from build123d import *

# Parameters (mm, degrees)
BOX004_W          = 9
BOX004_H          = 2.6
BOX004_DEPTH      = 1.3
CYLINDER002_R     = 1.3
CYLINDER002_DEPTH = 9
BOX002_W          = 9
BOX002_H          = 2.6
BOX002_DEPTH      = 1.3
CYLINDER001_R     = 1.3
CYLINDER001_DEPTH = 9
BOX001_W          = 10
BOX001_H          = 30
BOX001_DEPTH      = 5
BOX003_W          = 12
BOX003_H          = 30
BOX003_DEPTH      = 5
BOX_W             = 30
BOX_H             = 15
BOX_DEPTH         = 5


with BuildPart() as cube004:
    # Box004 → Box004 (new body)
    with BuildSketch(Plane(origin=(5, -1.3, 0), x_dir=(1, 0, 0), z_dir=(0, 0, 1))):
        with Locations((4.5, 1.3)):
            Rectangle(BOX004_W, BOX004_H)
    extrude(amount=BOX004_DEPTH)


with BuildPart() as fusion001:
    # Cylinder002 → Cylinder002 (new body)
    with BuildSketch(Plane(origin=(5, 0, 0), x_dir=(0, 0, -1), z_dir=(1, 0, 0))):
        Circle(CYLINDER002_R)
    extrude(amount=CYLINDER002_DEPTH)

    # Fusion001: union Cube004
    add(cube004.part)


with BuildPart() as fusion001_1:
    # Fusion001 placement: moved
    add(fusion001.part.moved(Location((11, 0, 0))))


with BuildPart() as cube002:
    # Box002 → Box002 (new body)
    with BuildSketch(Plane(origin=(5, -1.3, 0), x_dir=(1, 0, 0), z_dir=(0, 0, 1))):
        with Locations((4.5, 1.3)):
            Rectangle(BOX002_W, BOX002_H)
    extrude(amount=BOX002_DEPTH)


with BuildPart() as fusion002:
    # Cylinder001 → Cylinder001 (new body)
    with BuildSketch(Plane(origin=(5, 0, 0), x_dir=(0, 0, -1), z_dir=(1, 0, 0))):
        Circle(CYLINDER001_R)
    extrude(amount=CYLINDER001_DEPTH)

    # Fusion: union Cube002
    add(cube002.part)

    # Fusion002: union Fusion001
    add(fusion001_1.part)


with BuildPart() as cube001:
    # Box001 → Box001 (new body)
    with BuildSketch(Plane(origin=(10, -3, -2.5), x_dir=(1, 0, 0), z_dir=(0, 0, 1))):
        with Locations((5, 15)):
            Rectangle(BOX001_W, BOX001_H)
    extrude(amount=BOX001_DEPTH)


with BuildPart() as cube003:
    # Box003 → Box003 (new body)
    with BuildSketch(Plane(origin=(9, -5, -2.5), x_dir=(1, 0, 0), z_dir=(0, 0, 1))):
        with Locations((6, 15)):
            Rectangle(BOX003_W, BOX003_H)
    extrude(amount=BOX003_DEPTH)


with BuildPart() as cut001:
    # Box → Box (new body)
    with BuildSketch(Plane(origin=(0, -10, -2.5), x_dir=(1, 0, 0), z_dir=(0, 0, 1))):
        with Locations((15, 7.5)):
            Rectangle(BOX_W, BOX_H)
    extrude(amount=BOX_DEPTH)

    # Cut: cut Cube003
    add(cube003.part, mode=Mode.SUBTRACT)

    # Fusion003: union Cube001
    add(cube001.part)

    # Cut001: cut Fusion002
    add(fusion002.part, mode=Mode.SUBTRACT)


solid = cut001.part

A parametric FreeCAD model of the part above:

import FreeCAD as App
import Part
import Sketcher
Q = App.Units.Quantity


def add_polygon(sketch, points):
    """Adds a closed chain of lines whose ends are joined by coincident constraints."""
    first, n = sketch.GeometryCount, len(points)
    for a, b in zip(points, points[1:] + points[:1]):
        sketch.addGeometry(Part.LineSegment(App.Vector(*a, 0), App.Vector(*b, 0)), False)
    for i in range(n):
        sketch.addConstraint(Sketcher.Constraint("Coincident", first + i, 2, first + (i + 1) % n, 1))

doc = App.newDocument("Part")
body = doc.addObject("PartDesign::Body", "Body")

sketch1 = body.newObject("Sketcher::SketchObject", "Sketch")
sketch1.AttachmentSupport = (doc.getObject("XY_Plane"), [""])
sketch1.MapMode = "FlatFace"
add_polygon(sketch1, [(5, 1.3), (5, -1.3), (14, -1.3), (14, 1.3)])
sketch1.addConstraint([
    Sketcher.Constraint("Vertical", 0),
    Sketcher.Constraint("Horizontal", 1),
    Sketcher.Constraint("Vertical", 2),
    Sketcher.Constraint("Horizontal", 3),
    Sketcher.Constraint("DistanceX", 1, 1, 1, 2, Q("9 mm")),
    Sketcher.Constraint("DistanceY", 0, 2, 0, 1, Q("2.6 mm")),
    Sketcher.Constraint("DistanceX", -1, 1, 0, 2, Q("5 mm")),
    Sketcher.Constraint("DistanceY", 0, 2, -1, 1, Q("1.3 mm")),
])
pad1 = body.newObject("PartDesign::Pad", "Pad")
pad1.Profile = sketch1
pad1.Length = 1.3
body2 = doc.addObject("PartDesign::Body", "Body001")

sketch2 = body2.newObject("Sketcher::SketchObject", "Sketch001")
sketch2.AttachmentSupport = (doc.getObject("YZ_Plane001"), [""])
sketch2.MapMode = "FlatFace"
sketch2.AttachmentOffset = App.Placement(App.Vector(0, 0, 5), App.Rotation())
sketch2.addGeometry(Part.Circle(App.Vector(0, 0, 0), App.Vector(0, 0, 1), 1.3), False)
sketch2.addConstraint([
    Sketcher.Constraint("Coincident", 0, 3, -1, 1),
    Sketcher.Constraint("Diameter", 0, Q("2.6 mm")),
])
pad2 = body2.newObject("PartDesign::Pad", "Pad001")
pad2.Profile = sketch2
pad2.Length = 9
doc.recompute()

boolean = body2.newObject("PartDesign::Boolean", "Boolean")
boolean.Type = "Fuse"
boolean.addObjects([body])
body3 = doc.addObject("PartDesign::Body", "Body002")
doc.recompute()

body2.Placement = App.Placement(App.Vector(11, 0, 0), App.Rotation(App.Vector(0, 0, 1), 0))
boolean2 = body3.newObject("PartDesign::Boolean", "Boolean001")
boolean2.Type = "Fuse"
boolean2.addObjects([body2])
body4 = doc.addObject("PartDesign::Body", "Body003")

sketch3 = body4.newObject("Sketcher::SketchObject", "Sketch002")
sketch3.AttachmentSupport = (doc.getObject("XY_Plane003"), [""])
sketch3.MapMode = "FlatFace"
add_polygon(sketch3, [(5, 1.3), (5, -1.3), (14, -1.3), (14, 1.3)])
sketch3.addConstraint([
    Sketcher.Constraint("Vertical", 0),
    Sketcher.Constraint("Horizontal", 1),
    Sketcher.Constraint("Vertical", 2),
    Sketcher.Constraint("Horizontal", 3),
    Sketcher.Constraint("DistanceX", 1, 1, 1, 2, Q("9 mm")),
    Sketcher.Constraint("DistanceY", 0, 2, 0, 1, Q("2.6 mm")),
    Sketcher.Constraint("DistanceX", -1, 1, 0, 2, Q("5 mm")),
    Sketcher.Constraint("DistanceY", 0, 2, -1, 1, Q("1.3 mm")),
])
pad3 = body4.newObject("PartDesign::Pad", "Pad002")
pad3.Profile = sketch3
pad3.Length = 1.3
body5 = doc.addObject("PartDesign::Body", "Body004")
body5.AllowCompound = True

sketch4 = body5.newObject("Sketcher::SketchObject", "Sketch003")
sketch4.AttachmentSupport = (doc.getObject("YZ_Plane004"), [""])
sketch4.MapMode = "FlatFace"
sketch4.AttachmentOffset = App.Placement(App.Vector(0, 0, 5), App.Rotation())
sketch4.addGeometry(Part.Circle(App.Vector(0, 0, 0), App.Vector(0, 0, 1), 1.3), False)
sketch4.addConstraint([
    Sketcher.Constraint("Coincident", 0, 3, -1, 1),
    Sketcher.Constraint("Diameter", 0, Q("2.6 mm")),
])
pad4 = body5.newObject("PartDesign::Pad", "Pad003")
pad4.Profile = sketch4
pad4.Length = 9
doc.recompute()

boolean3 = body5.newObject("PartDesign::Boolean", "Boolean002")
boolean3.Type = "Fuse"
boolean3.addObjects([body4])
doc.recompute()

boolean4 = body5.newObject("PartDesign::Boolean", "Boolean003")
boolean4.Type = "Fuse"
boolean4.addObjects([body3])
body6 = doc.addObject("PartDesign::Body", "Body005")

sketch5 = body6.newObject("Sketcher::SketchObject", "Sketch004")
sketch5.AttachmentSupport = (doc.getObject("XY_Plane005"), [""])
sketch5.MapMode = "FlatFace"
sketch5.AttachmentOffset = App.Placement(App.Vector(0, 0, -2.5), App.Rotation())
add_polygon(sketch5, [(10, 27), (10, -3), (20, -3), (20, 27)])
sketch5.addConstraint([
    Sketcher.Constraint("Vertical", 0),
    Sketcher.Constraint("Horizontal", 1),
    Sketcher.Constraint("Vertical", 2),
    Sketcher.Constraint("Horizontal", 3),
    Sketcher.Constraint("DistanceX", 1, 1, 1, 2, Q("10 mm")),
    Sketcher.Constraint("DistanceY", 0, 2, 0, 1, Q("30 mm")),
    Sketcher.Constraint("DistanceX", -1, 1, 0, 2, Q("10 mm")),
    Sketcher.Constraint("DistanceY", 0, 2, -1, 1, Q("3 mm")),
])
pad5 = body6.newObject("PartDesign::Pad", "Pad004")
pad5.Profile = sketch5
pad5.Length = 5
body7 = doc.addObject("PartDesign::Body", "Body006")

sketch6 = body7.newObject("Sketcher::SketchObject", "Sketch005")
sketch6.AttachmentSupport = (doc.getObject("XY_Plane006"), [""])
sketch6.MapMode = "FlatFace"
sketch6.AttachmentOffset = App.Placement(App.Vector(0, 0, -2.5), App.Rotation())
add_polygon(sketch6, [(9, 25), (9, -5), (21, -5), (21, 25)])
sketch6.addConstraint([
    Sketcher.Constraint("Vertical", 0),
    Sketcher.Constraint("Horizontal", 1),
    Sketcher.Constraint("Vertical", 2),
    Sketcher.Constraint("Horizontal", 3),
    Sketcher.Constraint("DistanceX", 1, 1, 1, 2, Q("12 mm")),
    Sketcher.Constraint("DistanceY", 0, 2, 0, 1, Q("30 mm")),
    Sketcher.Constraint("DistanceX", -1, 1, 0, 2, Q("9 mm")),
    Sketcher.Constraint("DistanceY", 0, 2, -1, 1, Q("5 mm")),
])
pad6 = body7.newObject("PartDesign::Pad", "Pad005")
pad6.Profile = sketch6
pad6.Length = 5
body8 = doc.addObject("PartDesign::Body", "Body007")
body8.AllowCompound = True

sketch7 = body8.newObject("Sketcher::SketchObject", "Sketch006")
sketch7.AttachmentSupport = (doc.getObject("XY_Plane007"), [""])
sketch7.MapMode = "FlatFace"
sketch7.AttachmentOffset = App.Placement(App.Vector(0, 0, -2.5), App.Rotation())
add_polygon(sketch7, [(0, 5), (0, -10), (30, -10), (30, 5)])
sketch7.addConstraint([
    Sketcher.Constraint("Vertical", 0),
    Sketcher.Constraint("Horizontal", 1),
    Sketcher.Constraint("Vertical", 2),
    Sketcher.Constraint("Horizontal", 3),
    Sketcher.Constraint("PointOnObject", 0, 2, -2),
    Sketcher.Constraint("DistanceX", 1, 1, 1, 2, Q("30 mm")),
    Sketcher.Constraint("DistanceY", 0, 2, 0, 1, Q("15 mm")),
    Sketcher.Constraint("DistanceY", 0, 2, -1, 1, Q("10 mm")),
])
pad7 = body8.newObject("PartDesign::Pad", "Pad006")
pad7.Profile = sketch7
pad7.Length = 5
doc.recompute()

boolean5 = body8.newObject("PartDesign::Boolean", "Boolean004")
boolean5.Type = "Cut"
boolean5.addObjects([body7])
doc.recompute()

boolean6 = body8.newObject("PartDesign::Boolean", "Boolean005")
boolean6.Type = "Fuse"
boolean6.addObjects([body6])
doc.recompute()

boolean7 = body8.newObject("PartDesign::Boolean", "Boolean006")
boolean7.Type = "Cut"
boolean7.addObjects([body5])

doc.recompute()
